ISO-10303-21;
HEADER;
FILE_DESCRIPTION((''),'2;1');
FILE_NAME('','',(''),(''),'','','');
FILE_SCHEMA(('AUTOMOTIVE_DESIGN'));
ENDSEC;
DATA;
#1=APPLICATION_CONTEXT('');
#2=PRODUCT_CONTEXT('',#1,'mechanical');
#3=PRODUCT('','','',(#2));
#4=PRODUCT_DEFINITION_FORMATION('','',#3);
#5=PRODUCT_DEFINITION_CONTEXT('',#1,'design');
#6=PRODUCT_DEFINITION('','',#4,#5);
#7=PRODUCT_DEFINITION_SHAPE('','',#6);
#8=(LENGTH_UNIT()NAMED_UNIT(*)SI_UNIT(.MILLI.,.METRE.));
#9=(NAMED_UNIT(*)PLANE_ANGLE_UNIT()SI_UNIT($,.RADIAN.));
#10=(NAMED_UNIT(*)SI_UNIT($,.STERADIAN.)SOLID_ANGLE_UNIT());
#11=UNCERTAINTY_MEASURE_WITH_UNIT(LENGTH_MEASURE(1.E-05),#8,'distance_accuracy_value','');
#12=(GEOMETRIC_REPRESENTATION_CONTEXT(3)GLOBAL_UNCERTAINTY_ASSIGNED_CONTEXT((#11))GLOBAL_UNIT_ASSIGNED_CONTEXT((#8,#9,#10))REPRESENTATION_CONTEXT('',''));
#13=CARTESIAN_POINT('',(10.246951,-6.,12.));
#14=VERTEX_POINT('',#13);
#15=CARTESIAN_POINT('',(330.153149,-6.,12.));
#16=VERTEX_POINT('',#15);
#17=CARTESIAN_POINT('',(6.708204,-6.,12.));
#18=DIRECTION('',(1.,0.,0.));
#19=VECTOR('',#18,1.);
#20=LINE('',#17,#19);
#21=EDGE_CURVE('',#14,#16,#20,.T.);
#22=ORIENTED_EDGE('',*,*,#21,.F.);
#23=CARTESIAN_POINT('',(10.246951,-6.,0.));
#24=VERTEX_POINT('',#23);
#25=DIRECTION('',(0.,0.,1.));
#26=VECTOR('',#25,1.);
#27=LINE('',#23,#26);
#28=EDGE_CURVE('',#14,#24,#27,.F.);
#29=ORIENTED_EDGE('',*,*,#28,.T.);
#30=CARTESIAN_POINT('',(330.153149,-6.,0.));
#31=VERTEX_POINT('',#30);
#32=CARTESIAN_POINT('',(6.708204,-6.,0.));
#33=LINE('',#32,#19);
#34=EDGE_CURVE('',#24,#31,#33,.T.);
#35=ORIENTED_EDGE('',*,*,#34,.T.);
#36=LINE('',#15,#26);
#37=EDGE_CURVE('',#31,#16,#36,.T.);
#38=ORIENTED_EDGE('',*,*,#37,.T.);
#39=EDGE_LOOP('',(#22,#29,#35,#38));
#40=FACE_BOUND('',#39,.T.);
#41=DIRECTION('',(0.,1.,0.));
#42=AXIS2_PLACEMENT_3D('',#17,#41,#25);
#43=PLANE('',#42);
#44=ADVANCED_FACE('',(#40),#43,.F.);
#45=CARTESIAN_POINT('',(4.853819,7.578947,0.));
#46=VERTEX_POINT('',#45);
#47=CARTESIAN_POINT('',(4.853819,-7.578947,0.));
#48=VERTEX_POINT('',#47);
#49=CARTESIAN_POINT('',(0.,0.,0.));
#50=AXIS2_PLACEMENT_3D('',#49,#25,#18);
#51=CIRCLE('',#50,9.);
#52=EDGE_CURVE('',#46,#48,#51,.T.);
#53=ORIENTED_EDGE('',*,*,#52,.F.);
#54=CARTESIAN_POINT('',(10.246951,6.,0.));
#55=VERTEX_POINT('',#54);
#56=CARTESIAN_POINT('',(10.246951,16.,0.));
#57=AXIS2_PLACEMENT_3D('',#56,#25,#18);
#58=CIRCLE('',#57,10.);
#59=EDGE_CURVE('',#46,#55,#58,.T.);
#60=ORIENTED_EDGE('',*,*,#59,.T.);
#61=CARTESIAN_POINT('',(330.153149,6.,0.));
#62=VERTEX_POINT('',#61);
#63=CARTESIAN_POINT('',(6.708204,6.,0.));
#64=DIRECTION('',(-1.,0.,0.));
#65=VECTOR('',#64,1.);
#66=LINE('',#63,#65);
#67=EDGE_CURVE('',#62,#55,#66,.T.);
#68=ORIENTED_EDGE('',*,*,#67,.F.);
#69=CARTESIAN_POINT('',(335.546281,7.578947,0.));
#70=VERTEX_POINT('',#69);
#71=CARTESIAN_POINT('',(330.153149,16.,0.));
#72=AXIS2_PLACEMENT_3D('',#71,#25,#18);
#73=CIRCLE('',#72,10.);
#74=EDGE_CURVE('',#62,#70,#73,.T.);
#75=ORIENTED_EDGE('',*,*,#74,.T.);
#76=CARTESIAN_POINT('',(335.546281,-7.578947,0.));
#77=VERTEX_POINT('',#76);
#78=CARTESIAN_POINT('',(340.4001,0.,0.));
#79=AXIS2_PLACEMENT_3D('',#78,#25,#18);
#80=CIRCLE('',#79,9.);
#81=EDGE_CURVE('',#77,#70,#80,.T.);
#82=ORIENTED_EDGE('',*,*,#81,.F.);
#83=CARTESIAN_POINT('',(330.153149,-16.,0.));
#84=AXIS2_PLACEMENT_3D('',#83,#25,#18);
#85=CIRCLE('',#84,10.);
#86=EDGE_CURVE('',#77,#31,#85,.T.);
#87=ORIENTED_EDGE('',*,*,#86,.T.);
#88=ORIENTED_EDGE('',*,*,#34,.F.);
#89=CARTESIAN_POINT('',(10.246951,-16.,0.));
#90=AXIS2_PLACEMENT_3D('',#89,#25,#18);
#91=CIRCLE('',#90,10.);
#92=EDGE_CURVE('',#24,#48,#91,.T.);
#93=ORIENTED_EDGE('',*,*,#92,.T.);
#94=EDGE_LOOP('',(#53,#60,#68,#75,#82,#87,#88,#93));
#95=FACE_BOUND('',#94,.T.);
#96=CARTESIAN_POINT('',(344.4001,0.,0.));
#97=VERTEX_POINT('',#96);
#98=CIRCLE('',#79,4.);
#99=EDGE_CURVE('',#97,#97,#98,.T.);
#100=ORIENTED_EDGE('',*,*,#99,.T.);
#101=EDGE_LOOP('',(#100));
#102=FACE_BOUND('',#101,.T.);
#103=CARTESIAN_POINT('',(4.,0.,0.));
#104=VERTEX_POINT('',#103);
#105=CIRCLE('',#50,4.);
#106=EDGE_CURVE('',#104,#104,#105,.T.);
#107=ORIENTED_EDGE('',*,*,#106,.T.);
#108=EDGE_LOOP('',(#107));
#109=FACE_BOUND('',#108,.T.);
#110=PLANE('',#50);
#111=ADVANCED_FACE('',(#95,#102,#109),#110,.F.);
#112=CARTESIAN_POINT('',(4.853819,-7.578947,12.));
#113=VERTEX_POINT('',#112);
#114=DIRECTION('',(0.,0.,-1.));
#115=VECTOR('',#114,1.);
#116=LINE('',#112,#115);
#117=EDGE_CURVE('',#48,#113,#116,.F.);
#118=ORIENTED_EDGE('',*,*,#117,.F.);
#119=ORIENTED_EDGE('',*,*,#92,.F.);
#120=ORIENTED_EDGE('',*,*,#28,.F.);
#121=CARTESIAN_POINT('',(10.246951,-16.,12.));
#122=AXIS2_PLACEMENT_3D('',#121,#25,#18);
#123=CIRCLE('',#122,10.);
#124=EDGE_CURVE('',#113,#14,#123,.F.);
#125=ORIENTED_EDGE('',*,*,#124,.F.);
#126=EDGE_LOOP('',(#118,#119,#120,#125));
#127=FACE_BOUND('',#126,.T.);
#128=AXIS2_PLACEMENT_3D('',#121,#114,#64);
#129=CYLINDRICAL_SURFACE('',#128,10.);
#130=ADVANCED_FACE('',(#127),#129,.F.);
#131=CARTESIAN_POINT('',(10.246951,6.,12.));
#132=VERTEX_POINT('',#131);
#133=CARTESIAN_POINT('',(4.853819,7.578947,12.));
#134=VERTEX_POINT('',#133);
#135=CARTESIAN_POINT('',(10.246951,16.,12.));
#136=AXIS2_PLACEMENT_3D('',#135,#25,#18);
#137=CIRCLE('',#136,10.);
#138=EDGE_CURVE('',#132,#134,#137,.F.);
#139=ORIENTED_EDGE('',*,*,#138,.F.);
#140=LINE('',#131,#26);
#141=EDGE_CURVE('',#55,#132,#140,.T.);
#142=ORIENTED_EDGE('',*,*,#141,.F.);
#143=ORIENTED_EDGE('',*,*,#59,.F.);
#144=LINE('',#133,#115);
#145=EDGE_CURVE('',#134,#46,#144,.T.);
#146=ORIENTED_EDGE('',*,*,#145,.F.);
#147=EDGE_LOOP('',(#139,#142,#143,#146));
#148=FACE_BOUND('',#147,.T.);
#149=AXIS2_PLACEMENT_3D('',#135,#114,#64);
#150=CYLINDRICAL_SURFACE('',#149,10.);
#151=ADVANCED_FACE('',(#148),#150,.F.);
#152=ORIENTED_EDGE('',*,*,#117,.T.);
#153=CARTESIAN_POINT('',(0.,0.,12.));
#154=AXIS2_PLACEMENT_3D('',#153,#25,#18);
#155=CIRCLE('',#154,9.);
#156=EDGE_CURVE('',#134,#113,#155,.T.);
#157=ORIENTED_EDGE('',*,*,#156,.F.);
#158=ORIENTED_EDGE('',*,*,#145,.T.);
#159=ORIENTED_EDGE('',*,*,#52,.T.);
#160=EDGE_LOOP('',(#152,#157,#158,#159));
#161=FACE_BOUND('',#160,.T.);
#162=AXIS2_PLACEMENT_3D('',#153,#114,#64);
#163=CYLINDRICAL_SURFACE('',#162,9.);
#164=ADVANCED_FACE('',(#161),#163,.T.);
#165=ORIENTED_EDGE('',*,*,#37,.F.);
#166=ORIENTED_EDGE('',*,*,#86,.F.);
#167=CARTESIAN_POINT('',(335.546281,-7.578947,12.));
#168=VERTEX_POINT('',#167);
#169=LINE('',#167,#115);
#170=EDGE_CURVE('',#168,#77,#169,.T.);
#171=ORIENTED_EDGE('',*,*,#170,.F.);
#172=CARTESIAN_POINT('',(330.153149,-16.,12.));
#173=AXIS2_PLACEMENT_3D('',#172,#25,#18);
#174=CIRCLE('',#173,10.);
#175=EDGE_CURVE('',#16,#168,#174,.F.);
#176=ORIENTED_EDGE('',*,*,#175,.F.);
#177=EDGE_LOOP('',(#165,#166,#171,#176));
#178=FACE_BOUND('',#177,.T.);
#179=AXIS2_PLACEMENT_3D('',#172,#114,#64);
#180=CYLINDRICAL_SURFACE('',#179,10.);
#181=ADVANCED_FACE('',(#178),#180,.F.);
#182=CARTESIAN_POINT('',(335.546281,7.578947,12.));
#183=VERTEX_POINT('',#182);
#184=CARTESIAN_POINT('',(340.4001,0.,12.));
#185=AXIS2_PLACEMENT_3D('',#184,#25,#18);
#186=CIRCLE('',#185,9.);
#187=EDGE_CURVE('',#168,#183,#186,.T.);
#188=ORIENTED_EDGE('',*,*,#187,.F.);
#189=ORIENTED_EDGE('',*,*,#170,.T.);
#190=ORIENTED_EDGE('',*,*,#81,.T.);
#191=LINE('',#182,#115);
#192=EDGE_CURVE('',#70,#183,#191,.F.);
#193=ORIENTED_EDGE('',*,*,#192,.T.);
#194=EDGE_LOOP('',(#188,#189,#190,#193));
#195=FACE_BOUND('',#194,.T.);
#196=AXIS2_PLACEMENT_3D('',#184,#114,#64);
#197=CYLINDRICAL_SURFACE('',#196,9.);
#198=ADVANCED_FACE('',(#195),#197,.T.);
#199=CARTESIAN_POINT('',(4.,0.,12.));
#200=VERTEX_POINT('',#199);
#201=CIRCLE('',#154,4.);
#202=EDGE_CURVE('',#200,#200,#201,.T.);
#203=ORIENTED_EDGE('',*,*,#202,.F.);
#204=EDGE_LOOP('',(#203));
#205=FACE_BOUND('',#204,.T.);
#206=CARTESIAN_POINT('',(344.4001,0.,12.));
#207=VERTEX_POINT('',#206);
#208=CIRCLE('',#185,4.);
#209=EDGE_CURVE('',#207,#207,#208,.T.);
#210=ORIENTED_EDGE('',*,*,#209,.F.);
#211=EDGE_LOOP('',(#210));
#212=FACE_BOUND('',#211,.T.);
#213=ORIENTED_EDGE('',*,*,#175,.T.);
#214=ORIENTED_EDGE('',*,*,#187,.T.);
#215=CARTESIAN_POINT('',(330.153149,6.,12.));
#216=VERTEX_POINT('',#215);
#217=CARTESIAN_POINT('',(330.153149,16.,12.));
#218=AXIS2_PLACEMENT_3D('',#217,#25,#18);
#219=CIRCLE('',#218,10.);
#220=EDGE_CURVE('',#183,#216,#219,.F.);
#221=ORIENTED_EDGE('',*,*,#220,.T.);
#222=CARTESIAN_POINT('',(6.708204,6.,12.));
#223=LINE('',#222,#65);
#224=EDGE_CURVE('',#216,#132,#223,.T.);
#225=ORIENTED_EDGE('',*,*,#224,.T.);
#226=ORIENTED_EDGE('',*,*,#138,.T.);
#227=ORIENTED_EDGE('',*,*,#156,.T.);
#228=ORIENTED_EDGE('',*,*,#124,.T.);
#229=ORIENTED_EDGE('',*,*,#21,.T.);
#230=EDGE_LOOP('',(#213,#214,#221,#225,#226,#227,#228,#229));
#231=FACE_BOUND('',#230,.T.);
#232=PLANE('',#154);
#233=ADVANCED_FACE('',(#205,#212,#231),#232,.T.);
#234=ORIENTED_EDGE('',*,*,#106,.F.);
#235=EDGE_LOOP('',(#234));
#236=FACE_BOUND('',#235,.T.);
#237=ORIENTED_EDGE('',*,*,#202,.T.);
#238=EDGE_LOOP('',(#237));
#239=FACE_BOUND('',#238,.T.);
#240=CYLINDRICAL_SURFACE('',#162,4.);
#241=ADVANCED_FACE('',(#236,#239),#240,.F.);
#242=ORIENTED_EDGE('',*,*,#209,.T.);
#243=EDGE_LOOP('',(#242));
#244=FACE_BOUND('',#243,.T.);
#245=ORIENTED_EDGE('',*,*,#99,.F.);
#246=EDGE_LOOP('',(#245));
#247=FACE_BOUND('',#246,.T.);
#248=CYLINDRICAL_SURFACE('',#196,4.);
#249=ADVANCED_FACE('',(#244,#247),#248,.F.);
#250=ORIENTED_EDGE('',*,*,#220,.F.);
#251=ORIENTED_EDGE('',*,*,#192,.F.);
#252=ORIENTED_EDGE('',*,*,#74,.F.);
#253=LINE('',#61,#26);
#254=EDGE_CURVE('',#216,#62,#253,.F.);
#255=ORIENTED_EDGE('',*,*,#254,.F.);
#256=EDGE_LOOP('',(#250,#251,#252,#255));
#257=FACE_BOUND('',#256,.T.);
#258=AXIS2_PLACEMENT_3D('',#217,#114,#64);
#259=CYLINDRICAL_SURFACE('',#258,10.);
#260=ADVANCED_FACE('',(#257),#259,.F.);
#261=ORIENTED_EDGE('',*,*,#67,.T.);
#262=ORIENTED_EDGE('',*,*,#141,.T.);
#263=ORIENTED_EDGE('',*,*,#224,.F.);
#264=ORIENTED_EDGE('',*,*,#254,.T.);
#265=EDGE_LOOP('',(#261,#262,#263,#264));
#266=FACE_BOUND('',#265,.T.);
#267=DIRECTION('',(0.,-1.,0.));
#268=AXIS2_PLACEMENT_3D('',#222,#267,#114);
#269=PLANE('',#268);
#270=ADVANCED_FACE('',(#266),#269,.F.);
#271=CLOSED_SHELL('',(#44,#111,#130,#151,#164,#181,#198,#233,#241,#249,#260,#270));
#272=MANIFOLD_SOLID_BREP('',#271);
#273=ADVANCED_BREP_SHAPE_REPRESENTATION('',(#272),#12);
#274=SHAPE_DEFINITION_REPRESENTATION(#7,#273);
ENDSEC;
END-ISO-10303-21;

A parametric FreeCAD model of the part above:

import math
import FreeCAD as App
import Part
import Sketcher
from FreeCAD import Vector
Q = App.Units.Quantity


def edges_at(feature, points):
    """Names of the edges that pass closest to the given points."""
    edges = feature.Shape.Edges
    near = lambda p: min(range(len(edges)), key=lambda i: edges[i].distToShape(Part.Vertex(*p))[0])
    return sorted({f"Edge{near(p) + 1}" for p in points})

doc = App.newDocument("Part")
params = doc.addObject("Spreadsheet::Sheet", "Params")
for row, (alias, value) in enumerate([
    ("sketch1_diameter", "8 mm"),
    ("sketch1_radius", "9 mm"),
    ("pad1_length", "12 mm"),
    ("fillet_radius", "10 mm"),
], start=1):
    params.set(f"A{row}", alias)
    params.set(f"B{row}", "=" + value)
    params.setAlias(f"B{row}", alias)

body = doc.addObject("PartDesign::Body", "Body")

# Sketch on XY plane
sketch1 = body.newObject("Sketcher::SketchObject", "Sketch")
sketch1.AttachmentSupport = (doc.getObject("XY_Plane"), [""])
sketch1.MapMode = "FlatFace"
sketch1.addGeometry(Part.LineSegment(Vector(333.691896, 6, 0), Vector(6.708204, 6, 0)), False)
sketch1.addGeometry(Part.ArcOfCircle(Part.Circle(Vector(0, 0, 0), Vector(0, 0, 1), 9), math.radians(41.810315), math.radians(318.189685)), False)
sketch1.addGeometry(Part.LineSegment(Vector(6.708204, -6, 0), Vector(333.691896, -6, 0)), False)
sketch1.addGeometry(Part.ArcOfCircle(Part.Circle(Vector(340.4001, 0, 0), Vector(0, 0, 1), 9), math.radians(-138.189685), math.radians(138.189685)), False)
sketch1.addGeometry(Part.Circle(Vector(0, 0, 0), Vector(0, 0, 1), 4), False)
sketch1.addGeometry(Part.Circle(Vector(340.4001, 0, 0), Vector(0, 0, 1), 4), False)
sketch1.addConstraint(Sketcher.Constraint("Coincident", 0, 2, 1, 1))
sketch1.addConstraint(Sketcher.Constraint("Coincident", 1, 2, 2, 1))
sketch1.addConstraint(Sketcher.Constraint("Coincident", 2, 2, 3, 1))
sketch1.addConstraint(Sketcher.Constraint("Coincident", 3, 2, 0, 1))
sketch1.addConstraint(Sketcher.Constraint("Horizontal", 0))
sketch1.addConstraint(Sketcher.Constraint("Horizontal", 2))
sketch1.addConstraint(Sketcher.Constraint("Coincident", 1, 3, -1, 1))
sketch1.addConstraint(Sketcher.Constraint("Coincident", 4, 3, -1, 1))
sketch1.addConstraint(Sketcher.Constraint("Coincident", 5, 3, 3, 3))
sketch1.addConstraint(Sketcher.Constraint("Equal", 1, 3))
sketch1.addConstraint(Sketcher.Constraint("Equal", 4, 5))
sketch1.addConstraint(Sketcher.Constraint("Symmetric", 2, 2, 3, 2, -1))
sketch1.addConstraint(Sketcher.Constraint("Diameter", 4, Q("8 mm")))
sketch1.addConstraint(Sketcher.Constraint("Radius", 1, Q("9 mm")))
sketch1.addConstraint(Sketcher.Constraint("DistanceY", -1, 1, 0, 2, Q("6 mm")))
sketch1.addConstraint(Sketcher.Constraint("DistanceX", -1, 1, 3, 3, Q("340.4001 mm")))
sketch1.setExpression("Constraints[12]", "Params.sketch1_diameter")
sketch1.setExpression("Constraints[13]", "Params.sketch1_radius")
pad1 = body.newObject("PartDesign::Pad", "Pad")
pad1.Profile = sketch1
pad1.setExpression("Length", "Params.pad1_length")
doc.recompute()

fillet = body.newObject("PartDesign::Fillet", "Fillet")
fillet.Base = (pad1, edges_at(pad1, [
    (6.708, 6, 6),
    (333.692, 6, 6),
    (333.692, -6, 6),
    (6.708, -6, 6),
]))
fillet.setExpression("Radius", "Params.fillet_radius")

doc.recompute()
